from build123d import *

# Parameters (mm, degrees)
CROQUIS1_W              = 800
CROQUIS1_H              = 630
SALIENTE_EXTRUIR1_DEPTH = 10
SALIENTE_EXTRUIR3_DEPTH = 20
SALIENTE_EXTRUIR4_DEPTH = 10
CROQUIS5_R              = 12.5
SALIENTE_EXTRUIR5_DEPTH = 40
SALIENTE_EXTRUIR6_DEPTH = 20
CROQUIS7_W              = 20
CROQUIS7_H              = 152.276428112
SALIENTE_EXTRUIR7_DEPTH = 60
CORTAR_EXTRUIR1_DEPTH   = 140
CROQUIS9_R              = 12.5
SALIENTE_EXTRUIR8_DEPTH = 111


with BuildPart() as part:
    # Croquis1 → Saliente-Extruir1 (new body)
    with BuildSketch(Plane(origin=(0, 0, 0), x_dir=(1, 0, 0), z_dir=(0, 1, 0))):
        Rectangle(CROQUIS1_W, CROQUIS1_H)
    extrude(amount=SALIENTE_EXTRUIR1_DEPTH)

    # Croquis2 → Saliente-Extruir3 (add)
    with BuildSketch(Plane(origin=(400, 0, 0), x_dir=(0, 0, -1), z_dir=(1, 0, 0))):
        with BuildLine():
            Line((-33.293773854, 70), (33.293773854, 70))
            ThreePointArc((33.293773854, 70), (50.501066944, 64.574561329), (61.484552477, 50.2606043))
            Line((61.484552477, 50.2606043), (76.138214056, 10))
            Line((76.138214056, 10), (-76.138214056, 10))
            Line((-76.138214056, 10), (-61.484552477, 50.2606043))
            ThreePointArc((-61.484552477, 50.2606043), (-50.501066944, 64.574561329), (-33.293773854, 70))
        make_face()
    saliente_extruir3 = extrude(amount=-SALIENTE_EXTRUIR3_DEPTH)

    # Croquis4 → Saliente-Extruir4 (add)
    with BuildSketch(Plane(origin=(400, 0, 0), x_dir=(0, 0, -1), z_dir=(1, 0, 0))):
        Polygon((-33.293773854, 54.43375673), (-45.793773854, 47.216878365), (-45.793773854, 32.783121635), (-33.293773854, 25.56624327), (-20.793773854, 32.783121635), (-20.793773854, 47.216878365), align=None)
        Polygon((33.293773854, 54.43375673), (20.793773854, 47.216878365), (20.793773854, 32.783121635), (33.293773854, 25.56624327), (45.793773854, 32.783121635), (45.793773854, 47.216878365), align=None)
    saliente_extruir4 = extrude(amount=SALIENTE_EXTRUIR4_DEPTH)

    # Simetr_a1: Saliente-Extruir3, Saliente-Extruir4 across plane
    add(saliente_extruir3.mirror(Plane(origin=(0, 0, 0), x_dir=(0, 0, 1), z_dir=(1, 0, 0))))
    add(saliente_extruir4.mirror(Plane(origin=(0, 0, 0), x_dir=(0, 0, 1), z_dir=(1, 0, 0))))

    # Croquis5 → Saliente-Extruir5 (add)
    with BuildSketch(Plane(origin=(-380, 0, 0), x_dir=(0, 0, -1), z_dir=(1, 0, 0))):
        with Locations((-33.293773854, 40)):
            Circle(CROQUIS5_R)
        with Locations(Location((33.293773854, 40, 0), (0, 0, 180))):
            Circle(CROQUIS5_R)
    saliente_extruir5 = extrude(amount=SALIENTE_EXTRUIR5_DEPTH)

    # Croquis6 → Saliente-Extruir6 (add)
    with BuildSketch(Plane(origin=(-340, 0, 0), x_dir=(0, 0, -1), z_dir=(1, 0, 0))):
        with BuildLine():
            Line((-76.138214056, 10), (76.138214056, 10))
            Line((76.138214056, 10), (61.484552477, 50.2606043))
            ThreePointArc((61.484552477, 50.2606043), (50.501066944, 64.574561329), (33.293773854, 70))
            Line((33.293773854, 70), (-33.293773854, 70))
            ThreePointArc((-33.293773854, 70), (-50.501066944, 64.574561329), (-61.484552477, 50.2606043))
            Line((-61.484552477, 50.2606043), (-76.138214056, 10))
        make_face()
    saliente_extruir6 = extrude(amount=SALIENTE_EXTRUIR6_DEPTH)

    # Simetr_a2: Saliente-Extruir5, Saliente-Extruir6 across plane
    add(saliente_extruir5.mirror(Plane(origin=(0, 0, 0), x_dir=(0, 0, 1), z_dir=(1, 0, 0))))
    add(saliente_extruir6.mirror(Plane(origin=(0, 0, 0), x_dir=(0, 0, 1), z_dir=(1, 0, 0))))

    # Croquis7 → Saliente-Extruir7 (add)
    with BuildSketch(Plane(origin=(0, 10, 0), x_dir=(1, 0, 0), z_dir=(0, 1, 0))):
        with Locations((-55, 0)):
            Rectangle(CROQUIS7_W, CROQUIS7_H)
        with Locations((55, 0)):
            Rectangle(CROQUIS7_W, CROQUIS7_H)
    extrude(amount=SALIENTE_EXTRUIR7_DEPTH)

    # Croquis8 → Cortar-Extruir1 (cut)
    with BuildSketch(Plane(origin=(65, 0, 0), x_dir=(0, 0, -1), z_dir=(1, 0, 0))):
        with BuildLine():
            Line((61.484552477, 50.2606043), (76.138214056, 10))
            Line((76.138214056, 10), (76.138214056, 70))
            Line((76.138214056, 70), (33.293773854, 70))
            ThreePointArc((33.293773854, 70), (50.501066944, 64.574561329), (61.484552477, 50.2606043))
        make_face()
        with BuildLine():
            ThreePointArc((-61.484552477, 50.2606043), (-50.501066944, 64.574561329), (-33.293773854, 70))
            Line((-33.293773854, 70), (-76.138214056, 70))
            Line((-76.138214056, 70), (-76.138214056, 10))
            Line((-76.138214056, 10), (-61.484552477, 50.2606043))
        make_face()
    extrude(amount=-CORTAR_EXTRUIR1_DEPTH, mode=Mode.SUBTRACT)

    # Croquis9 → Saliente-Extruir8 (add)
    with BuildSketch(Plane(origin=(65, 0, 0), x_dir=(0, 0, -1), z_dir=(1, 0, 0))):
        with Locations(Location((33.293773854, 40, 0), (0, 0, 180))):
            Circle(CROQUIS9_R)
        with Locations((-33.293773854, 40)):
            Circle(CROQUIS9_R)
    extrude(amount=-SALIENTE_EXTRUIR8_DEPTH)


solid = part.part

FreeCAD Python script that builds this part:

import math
import FreeCAD as App
import Part
import Sketcher
from FreeCAD import Vector
Q = App.Units.Quantity

doc = App.newDocument("Part")
body = doc.addObject("PartDesign::Body", "Body")

# Sketch on XZ plane
sketch1 = body.newObject("Sketcher::SketchObject", "Sketch")
sketch1.AttachmentSupport = (doc.getObject("XZ_Plane"), [""])
sketch1.MapMode = "FlatFace"
sketch1.addGeometry([
    Part.LineSegment(Vector(-400, -315, 0), Vector(-400, 315, 0)),
    Part.LineSegment(Vector(-400, 315, 0), Vector(400, 315, 0)),
    Part.LineSegment(Vector(400, 315, 0), Vector(400, -315, 0)),
    Part.LineSegment(Vector(400, -315, 0), Vector(-400, -315, 0)),
], False)
sketch1.addConstraint([
    Sketcher.Constraint("Coincident", 0, 2, 1, 1),
    Sketcher.Constraint("Coincident", 1, 2, 2, 1),
    Sketcher.Constraint("Coincident", 2, 2, 3, 1),
    Sketcher.Constraint("Coincident", 3, 2, 0, 1),
    Sketcher.Constraint("Vertical", 0),
    Sketcher.Constraint("Horizontal", 1),
    Sketcher.Constraint("Vertical", 2),
    Sketcher.Constraint("Horizontal", 3),
    Sketcher.Constraint("Symmetric", 0, 2, 2, 2, -1, 1),
    Sketcher.Constraint("DistanceX", 1, 1, 1, 2, 800.0),
    Sketcher.Constraint("DistanceY", 0, 1, 0, 2, 630.0),
])
pad1 = body.newObject("PartDesign::Pad", "Pad")
pad1.Profile = sketch1
pad1.Length = 10
pad1.Reversed = True

# Sketch on YZ plane
sketch2 = body.newObject("Sketcher::SketchObject", "Sketch001")
sketch2.AttachmentSupport = (doc.getObject("YZ_Plane"), [""])
sketch2.MapMode = "FlatFace"
sketch2.AttachmentOffset = App.Placement(Vector(0, 0, 400), App.Rotation())
sketch2.addGeometry([
    Part.LineSegment(Vector(70, -33.293774, 0), Vector(70, 33.293774, 0)),  # 0
    Part.ArcOfCircle(Part.Circle(Vector(40, 33.293774, 0), Vector(0, 0, 1), 30), math.radians(0), math.radians(70)),  # 1
    Part.LineSegment(Vector(50.260604, 61.484552, 0), Vector(10, 76.138214, 0)),  # 2
    Part.LineSegment(Vector(10, 76.138214, 0), Vector(10, -76.138214, 0)),  # 3
    Part.LineSegment(Vector(10, -76.138214, 0), Vector(50.260604, -61.484552, 0)),  # 4
    Part.ArcOfCircle(Part.Circle(Vector(40, -33.293774, 0), Vector(0, 0, 1), 30), math.radians(-70), math.radians(0)),  # 5
], False)
sketch2.addConstraint([
    Sketcher.Constraint("Tangent", 0, 2, 1, 1),
    Sketcher.Constraint("Tangent", 1, 2, 2, 1),
    Sketcher.Constraint("Coincident", 2, 2, 3, 1),
    Sketcher.Constraint("Coincident", 3, 2, 4, 1),
    Sketcher.Constraint("Tangent", 4, 2, 5, 1),
    Sketcher.Constraint("Tangent", 5, 2, 0, 1),
    Sketcher.Constraint("Vertical", 0),
    Sketcher.Constraint("Vertical", 3),
    Sketcher.Constraint("Equal", 1, 5),
    Sketcher.Constraint("Symmetric", 1, 2, 4, 2, -1),
    Sketcher.Constraint("Radius", 1, 30.0),
    Sketcher.Constraint("Angle", 2, Q("160 deg")),
    Sketcher.Constraint("DistanceX", -1, 1, 1, 3, 40.0),
    Sketcher.Constraint("DistanceX", -1, 1, 2, 2, 10.0),
    Sketcher.Constraint("DistanceY", 3, 2, 3, 1, 152.276428),
])
pad2 = body.newObject("PartDesign::Pad", "Pad001")
pad2.Profile = sketch2
pad2.Length = 20
pad2.Reversed = True

# Sketch on YZ plane
sketch3 = body.newObject("Sketcher::SketchObject", "Sketch002")
sketch3.AttachmentSupport = (doc.getObject("YZ_Plane"), [""])
sketch3.MapMode = "FlatFace"
sketch3.AttachmentOffset = App.Placement(Vector(0, 0, 400), App.Rotation())
sketch3.addGeometry([
    Part.LineSegment(Vector(54.433757, 33.293774, 0), Vector(47.216878, 45.793774, 0)),  # 0
    Part.LineSegment(Vector(47.216878, 45.793774, 0), Vector(32.783122, 45.793774, 0)),  # 1
    Part.LineSegment(Vector(32.783122, 45.793774, 0), Vector(25.566243, 33.293774, 0)),  # 2
    Part.LineSegment(Vector(25.566243, 33.293774, 0), Vector(32.783122, 20.793774, 0)),  # 3
    Part.LineSegment(Vector(32.783122, 20.793774, 0), Vector(47.216878, 20.793774, 0)),  # 4
    Part.LineSegment(Vector(47.216878, 20.793774, 0), Vector(54.433757, 33.293774, 0)),  # 5
    Part.LineSegment(Vector(54.433757, -33.293774, 0), Vector(47.216878, -20.793774, 0)),  # 6
    Part.LineSegment(Vector(47.216878, -20.793774, 0), Vector(32.783122, -20.793774, 0)),  # 7
    Part.LineSegment(Vector(32.783122, -20.793774, 0), Vector(25.566243, -33.293774, 0)),  # 8
    Part.LineSegment(Vector(25.566243, -33.293774, 0), Vector(32.783122, -45.793774, 0)),  # 9
    Part.LineSegment(Vector(32.783122, -45.793774, 0), Vector(47.216878, -45.793774, 0)),  # 10
    Part.LineSegment(Vector(47.216878, -45.793774, 0), Vector(54.433757, -33.293774, 0)),  # 11
], False)
sketch3.addConstraint([
    Sketcher.Constraint("Coincident", 0, 2, 1, 1),
    Sketcher.Constraint("Coincident", 1, 2, 2, 1),
    Sketcher.Constraint("Coincident", 2, 2, 3, 1),
    Sketcher.Constraint("Coincident", 3, 2, 4, 1),
    Sketcher.Constraint("Coincident", 4, 2, 5, 1),
    Sketcher.Constraint("Coincident", 5, 2, 0, 1),
    Sketcher.Constraint("Coincident", 6, 2, 7, 1),
    Sketcher.Constraint("Coincident", 7, 2, 8, 1),
    Sketcher.Constraint("Coincident", 8, 2, 9, 1),
    Sketcher.Constraint("Coincident", 9, 2, 10, 1),
    Sketcher.Constraint("Coincident", 10, 2, 11, 1),
    Sketcher.Constraint("Coincident", 11, 2, 6, 1),
    Sketcher.Constraint("Horizontal", 1),
    Sketcher.Constraint("Horizontal", 4),
    Sketcher.Constraint("Horizontal", 7),
    Sketcher.Constraint("Horizontal", 10),
    Sketcher.Constraint("Symmetric", 4, 2, 6, 2, -1),
    Sketcher.Constraint("Symmetric", 2, 2, 8, 2, -1),
    Sketcher.Constraint("Symmetric", 1, 2, 9, 2, -1),
    Sketcher.Constraint("Symmetric", 5, 2, 11, 2, -1),
    Sketcher.Constraint("Parallel", 0, 3),
    Sketcher.Constraint("Parallel", 2, 5),
    Sketcher.Constraint("Parallel", 3, 6),
    Sketcher.Constraint("Parallel", 5, 8),
    Sketcher.Constraint("Parallel", 8, 11),
    Sketcher.Constraint("Horizontal", 2, 2, 5, 2),
    Sketcher.Constraint("Vertical", 1, 2, 3, 2),
    Sketcher.Constraint("Angle", 0, Q("120 deg")),
    Sketcher.Constraint("DistanceY", 3, 2, 1, 2, 25.0),
    Sketcher.Constraint("DistanceX", 1, 2, 1, 1, 14.433757),
    Sketcher.Constraint("DistanceX", -1, 1, 0, 2, 47.216878),
    Sketcher.Constraint("DistanceY", -1, 1, 0, 2, 45.793774),
])
pad3 = body.newObject("PartDesign::Pad", "Pad002")
pad3.Profile = sketch3
pad3.Length = 10
doc.recompute()

mirrored = body.newObject("PartDesign::Mirrored", "Mirrored")
mirrored.Originals = [pad2, pad3]
mirrored.MirrorPlane = (doc.getObject("YZ_Plane"), [""])
body.Tip = mirrored

# Sketch on YZ plane
sketch4 = body.newObject("Sketcher::SketchObject", "Sketch003")
sketch4.AttachmentSupport = (doc.getObject("YZ_Plane"), [""])
sketch4.MapMode = "FlatFace"
sketch4.AttachmentOffset = App.Placement(Vector(0, 0, -380), App.Rotation())
sketch4.addGeometry([
    Part.Circle(Vector(40, 33.293774, 0), Vector(0, 0, 1), 12.5),
    Part.Circle(Vector(40, -33.293774, 0), Vector(0, 0, 1), 12.5),
], False)
sketch4.addConstraint([
    Sketcher.Constraint("Equal", 0, 1),
    Sketcher.Constraint("Symmetric", 0, 3, 1, 3, -1),
    Sketcher.Constraint("Diameter", 0, 25.0),
    Sketcher.Constraint("DistanceX", -1, 1, 0, 3, 40.0),
    Sketcher.Constraint("DistanceY", -1, 1, 0, 3, 33.293774),
])
pad4 = body.newObject("PartDesign::Pad", "Pad003")
pad4.Profile = sketch4
pad4.Length = 40

# Sketch on YZ plane
sketch5 = body.newObject("Sketcher::SketchObject", "Sketch004")
sketch5.AttachmentSupport = (doc.getObject("YZ_Plane"), [""])
sketch5.MapMode = "FlatFace"
sketch5.AttachmentOffset = App.Placement(Vector(0, 0, -340), App.Rotation())
sketch5.addGeometry([
    Part.LineSegment(Vector(10, 76.138214, 0), Vector(10, -76.138214, 0)),  # 0
    Part.LineSegment(Vector(10, -76.138214, 0), Vector(50.260604, -61.484552, 0)),  # 1
    Part.ArcOfCircle(Part.Circle(Vector(40, -33.293774, 0), Vector(0, 0, 1), 30), math.radians(-70), math.radians(0)),  # 2
    Part.LineSegment(Vector(70, -33.293774, 0), Vector(70, 33.293774, 0)),  # 3
    Part.ArcOfCircle(Part.Circle(Vector(40, 33.293774, 0), Vector(0, 0, 1), 30), math.radians(0), math.radians(70)),  # 4
    Part.LineSegment(Vector(50.260604, 61.484552, 0), Vector(10, 76.138214, 0)),  # 5
], False)
sketch5.addConstraint([
    Sketcher.Constraint("Coincident", 0, 2, 1, 1),
    Sketcher.Constraint("Tangent", 1, 2, 2, 1),
    Sketcher.Constraint("Tangent", 2, 2, 3, 1),
    Sketcher.Constraint("Tangent", 3, 2, 4, 1),
    Sketcher.Constraint("Tangent", 4, 2, 5, 1),
    Sketcher.Constraint("Coincident", 5, 2, 0, 1),
    Sketcher.Constraint("Vertical", 0),
    Sketcher.Constraint("Vertical", 3),
    Sketcher.Constraint("Equal", 2, 4),
    Sketcher.Constraint("Symmetric", 1, 2, 4, 2, -1),
    Sketcher.Constraint("Radius", 2, 30.0),
    Sketcher.Constraint("Angle", 1, Q("20 deg")),
    Sketcher.Constraint("DistanceX", -1, 1, 2, 3, 40.0),
    Sketcher.Constraint("DistanceX", -1, 1, 0, 2, 10.0),
    Sketcher.Constraint("DistanceY", 0, 2, 0, 1, 152.276428),
])
pad5 = body.newObject("PartDesign::Pad", "Pad004")
pad5.Profile = sketch5
pad5.Length = 20
doc.recompute()

mirrored2 = body.newObject("PartDesign::Mirrored", "Mirrored001")
mirrored2.Originals = [pad4, pad5]
mirrored2.MirrorPlane = (doc.getObject("YZ_Plane"), [""])
body.Tip = mirrored2

# Sketch on XZ plane
sketch6 = body.newObject("Sketcher::SketchObject", "Sketch005")
sketch6.AttachmentSupport = (doc.getObject("XZ_Plane"), [""])
sketch6.MapMode = "FlatFace"
sketch6.AttachmentOffset = App.Placement(Vector(0, 0, -10), App.Rotation())
sketch6.addGeometry([
    Part.LineSegment(Vector(-65, -76.138214, 0), Vector(-65, 76.138214, 0)),  # 0
    Part.LineSegment(Vector(-65, 76.138214, 0), Vector(-45, 76.138214, 0)),  # 1
    Part.LineSegment(Vector(-45, 76.138214, 0), Vector(-45, -76.138214, 0)),  # 2
    Part.LineSegment(Vector(-45, -76.138214, 0), Vector(-65, -76.138214, 0)),  # 3
    Part.LineSegment(Vector(45, -76.138214, 0), Vector(45, 76.138214, 0)),  # 4
    Part.LineSegment(Vector(45, 76.138214, 0), Vector(65, 76.138214, 0)),  # 5
    Part.LineSegment(Vector(65, 76.138214, 0), Vector(65, -76.138214, 0)),  # 6
    Part.LineSegment(Vector(65, -76.138214, 0), Vector(45, -76.138214, 0)),  # 7
], False)
sketch6.addConstraint([
    Sketcher.Constraint("Coincident", 0, 2, 1, 1),
    Sketcher.Constraint("Coincident", 1, 2, 2, 1),
    Sketcher.Constraint("Coincident", 2, 2, 3, 1),
    Sketcher.Constraint("Coincident", 3, 2, 0, 1),
    Sketcher.Constraint("Coincident", 4, 2, 5, 1),
    Sketcher.Constraint("Coincident", 5, 2, 6, 1),
    Sketcher.Constraint("Coincident", 6, 2, 7, 1),
    Sketcher.Constraint("Coincident", 7, 2, 4, 1),
    Sketcher.Constraint("Vertical", 0),
    Sketcher.Constraint("Horizontal", 1),
    Sketcher.Constraint("Vertical", 2),
    Sketcher.Constraint("Horizontal", 3),
    Sketcher.Constraint("Vertical", 4),
    Sketcher.Constraint("Horizontal", 5),
    Sketcher.Constraint("Vertical", 6),
    Sketcher.Constraint("Horizontal", 7),
    Sketcher.Constraint("Symmetric", 2, 2, 4, 2, -1, 1),
    Sketcher.Constraint("Symmetric", 0, 2, 6, 2, -1, 1),
    Sketcher.Constraint("Horizontal", 1, 2, 4, 2),
    Sketcher.Constraint("DistanceX", 1, 1, 1, 2, 20.0),
    Sketcher.Constraint("DistanceX", 0, 2, -1, 1, 65.0),
    Sketcher.Constraint("DistanceY", 0, 1, 0, 2, 152.276428),
])
pad6 = body.newObject("PartDesign::Pad", "Pad005")
pad6.Profile = sketch6
pad6.Length = 60
pad6.Reversed = True

# Sketch on YZ plane
sketch7 = body.newObject("Sketcher::SketchObject", "Sketch006")
sketch7.AttachmentSupport = (doc.getObject("YZ_Plane"), [""])
sketch7.MapMode = "FlatFace"
sketch7.AttachmentOffset = App.Placement(Vector(0, 0, 65), App.Rotation())
sketch7.addGeometry([
    Part.LineSegment(Vector(50.260604, -61.484552, 0), Vector(10, -76.138214, 0)),  # 0
    Part.LineSegment(Vector(10, -76.138214, 0), Vector(70, -76.138214, 0)),  # 1
    Part.LineSegment(Vector(70, -76.138214, 0), Vector(70, -33.293774, 0)),  # 2
    Part.ArcOfCircle(Part.Circle(Vector(40, -33.293774, 0), Vector(0, 0, 1), 30), math.radians(-70), math.radians(0)),  # 3
    Part.ArcOfCircle(Part.Circle(Vector(40, 33.293774, 0), Vector(0, 0, 1), 30), math.radians(0), math.radians(70)),  # 4
    Part.LineSegment(Vector(70, 33.293774, 0), Vector(70, 76.138214, 0)),  # 5
    Part.LineSegment(Vector(70, 76.138214, 0), Vector(10, 76.138214, 0)),  # 6
    Part.LineSegment(Vector(10, 76.138214, 0), Vector(50.260604, 61.484552, 0)),  # 7
], False)
sketch7.addConstraint([
    Sketcher.Constraint("Coincident", 0, 2, 1, 1),
    Sketcher.Constraint("Coincident", 1, 2, 2, 1),
    Sketcher.Constraint("Tangent", 2, 2, 3, 2),
    Sketcher.Constraint("Tangent", 3, 1, 0, 1),
    Sketcher.Constraint("Tangent", 4, 1, 5, 1),
    Sketcher.Constraint("Coincident", 5, 2, 6, 1),
    Sketcher.Constraint("Coincident", 6, 2, 7, 1),
    Sketcher.Constraint("Tangent", 7, 2, 4, 2),
    Sketcher.Constraint("Horizontal", 1),
    Sketcher.Constraint("Vertical", 2),
    Sketcher.Constraint("Vertical", 5),
    Sketcher.Constraint("Horizontal", 6),
    Sketcher.Constraint("Equal", 3, 4),
    Sketcher.Constraint("Symmetric", 3, 3, 4, 3, -1),
    Sketcher.Constraint("Symmetric", 0, 2, 6, 2, -1),
    Sketcher.Constraint("Radius", 3, 30.0),
    Sketcher.Constraint("DistanceX", 1, 1, 1, 2, 60.0),
    Sketcher.Constraint("Angle", 0, Q("-160 deg")),
    Sketcher.Constraint("DistanceX", -1, 1, 3, 3, 40.0),
    Sketcher.Constraint("DistanceY", 3, 3, -1, 1, 33.293774),
])
pocket1 = body.newObject("PartDesign::Pocket", "Pocket")
pocket1.Profile = sketch7
pocket1.Length = 140

# Sketch on YZ plane
sketch8 = body.newObject("Sketcher::SketchObject", "Sketch007")
sketch8.AttachmentSupport = (doc.getObject("YZ_Plane"), [""])
sketch8.MapMode = "FlatFace"
sketch8.AttachmentOffset = App.Placement(Vector(0, 0, 65), App.Rotation())
sketch8.addGeometry([
    Part.Circle(Vector(40, -33.293774, 0), Vector(0, 0, 1), 12.5),
    Part.Circle(Vector(40, 33.293774, 0), Vector(0, 0, 1), 12.5),
], False)
sketch8.addConstraint([
    Sketcher.Constraint("Equal", 0, 1),
    Sketcher.Constraint("Symmetric", 0, 3, 1, 3, -1),
    Sketcher.Constraint("Diameter", 0, 25.0),
    Sketcher.Constraint("DistanceX", -1, 1, 0, 3, 40.0),
    Sketcher.Constraint("DistanceY", 0, 3, -1, 1, 33.293774),
])
pad7 = body.newObject("PartDesign::Pad", "Pad006")
pad7.Profile = sketch8
pad7.Length = 111
pad7.Reversed = True

doc.recompute()
